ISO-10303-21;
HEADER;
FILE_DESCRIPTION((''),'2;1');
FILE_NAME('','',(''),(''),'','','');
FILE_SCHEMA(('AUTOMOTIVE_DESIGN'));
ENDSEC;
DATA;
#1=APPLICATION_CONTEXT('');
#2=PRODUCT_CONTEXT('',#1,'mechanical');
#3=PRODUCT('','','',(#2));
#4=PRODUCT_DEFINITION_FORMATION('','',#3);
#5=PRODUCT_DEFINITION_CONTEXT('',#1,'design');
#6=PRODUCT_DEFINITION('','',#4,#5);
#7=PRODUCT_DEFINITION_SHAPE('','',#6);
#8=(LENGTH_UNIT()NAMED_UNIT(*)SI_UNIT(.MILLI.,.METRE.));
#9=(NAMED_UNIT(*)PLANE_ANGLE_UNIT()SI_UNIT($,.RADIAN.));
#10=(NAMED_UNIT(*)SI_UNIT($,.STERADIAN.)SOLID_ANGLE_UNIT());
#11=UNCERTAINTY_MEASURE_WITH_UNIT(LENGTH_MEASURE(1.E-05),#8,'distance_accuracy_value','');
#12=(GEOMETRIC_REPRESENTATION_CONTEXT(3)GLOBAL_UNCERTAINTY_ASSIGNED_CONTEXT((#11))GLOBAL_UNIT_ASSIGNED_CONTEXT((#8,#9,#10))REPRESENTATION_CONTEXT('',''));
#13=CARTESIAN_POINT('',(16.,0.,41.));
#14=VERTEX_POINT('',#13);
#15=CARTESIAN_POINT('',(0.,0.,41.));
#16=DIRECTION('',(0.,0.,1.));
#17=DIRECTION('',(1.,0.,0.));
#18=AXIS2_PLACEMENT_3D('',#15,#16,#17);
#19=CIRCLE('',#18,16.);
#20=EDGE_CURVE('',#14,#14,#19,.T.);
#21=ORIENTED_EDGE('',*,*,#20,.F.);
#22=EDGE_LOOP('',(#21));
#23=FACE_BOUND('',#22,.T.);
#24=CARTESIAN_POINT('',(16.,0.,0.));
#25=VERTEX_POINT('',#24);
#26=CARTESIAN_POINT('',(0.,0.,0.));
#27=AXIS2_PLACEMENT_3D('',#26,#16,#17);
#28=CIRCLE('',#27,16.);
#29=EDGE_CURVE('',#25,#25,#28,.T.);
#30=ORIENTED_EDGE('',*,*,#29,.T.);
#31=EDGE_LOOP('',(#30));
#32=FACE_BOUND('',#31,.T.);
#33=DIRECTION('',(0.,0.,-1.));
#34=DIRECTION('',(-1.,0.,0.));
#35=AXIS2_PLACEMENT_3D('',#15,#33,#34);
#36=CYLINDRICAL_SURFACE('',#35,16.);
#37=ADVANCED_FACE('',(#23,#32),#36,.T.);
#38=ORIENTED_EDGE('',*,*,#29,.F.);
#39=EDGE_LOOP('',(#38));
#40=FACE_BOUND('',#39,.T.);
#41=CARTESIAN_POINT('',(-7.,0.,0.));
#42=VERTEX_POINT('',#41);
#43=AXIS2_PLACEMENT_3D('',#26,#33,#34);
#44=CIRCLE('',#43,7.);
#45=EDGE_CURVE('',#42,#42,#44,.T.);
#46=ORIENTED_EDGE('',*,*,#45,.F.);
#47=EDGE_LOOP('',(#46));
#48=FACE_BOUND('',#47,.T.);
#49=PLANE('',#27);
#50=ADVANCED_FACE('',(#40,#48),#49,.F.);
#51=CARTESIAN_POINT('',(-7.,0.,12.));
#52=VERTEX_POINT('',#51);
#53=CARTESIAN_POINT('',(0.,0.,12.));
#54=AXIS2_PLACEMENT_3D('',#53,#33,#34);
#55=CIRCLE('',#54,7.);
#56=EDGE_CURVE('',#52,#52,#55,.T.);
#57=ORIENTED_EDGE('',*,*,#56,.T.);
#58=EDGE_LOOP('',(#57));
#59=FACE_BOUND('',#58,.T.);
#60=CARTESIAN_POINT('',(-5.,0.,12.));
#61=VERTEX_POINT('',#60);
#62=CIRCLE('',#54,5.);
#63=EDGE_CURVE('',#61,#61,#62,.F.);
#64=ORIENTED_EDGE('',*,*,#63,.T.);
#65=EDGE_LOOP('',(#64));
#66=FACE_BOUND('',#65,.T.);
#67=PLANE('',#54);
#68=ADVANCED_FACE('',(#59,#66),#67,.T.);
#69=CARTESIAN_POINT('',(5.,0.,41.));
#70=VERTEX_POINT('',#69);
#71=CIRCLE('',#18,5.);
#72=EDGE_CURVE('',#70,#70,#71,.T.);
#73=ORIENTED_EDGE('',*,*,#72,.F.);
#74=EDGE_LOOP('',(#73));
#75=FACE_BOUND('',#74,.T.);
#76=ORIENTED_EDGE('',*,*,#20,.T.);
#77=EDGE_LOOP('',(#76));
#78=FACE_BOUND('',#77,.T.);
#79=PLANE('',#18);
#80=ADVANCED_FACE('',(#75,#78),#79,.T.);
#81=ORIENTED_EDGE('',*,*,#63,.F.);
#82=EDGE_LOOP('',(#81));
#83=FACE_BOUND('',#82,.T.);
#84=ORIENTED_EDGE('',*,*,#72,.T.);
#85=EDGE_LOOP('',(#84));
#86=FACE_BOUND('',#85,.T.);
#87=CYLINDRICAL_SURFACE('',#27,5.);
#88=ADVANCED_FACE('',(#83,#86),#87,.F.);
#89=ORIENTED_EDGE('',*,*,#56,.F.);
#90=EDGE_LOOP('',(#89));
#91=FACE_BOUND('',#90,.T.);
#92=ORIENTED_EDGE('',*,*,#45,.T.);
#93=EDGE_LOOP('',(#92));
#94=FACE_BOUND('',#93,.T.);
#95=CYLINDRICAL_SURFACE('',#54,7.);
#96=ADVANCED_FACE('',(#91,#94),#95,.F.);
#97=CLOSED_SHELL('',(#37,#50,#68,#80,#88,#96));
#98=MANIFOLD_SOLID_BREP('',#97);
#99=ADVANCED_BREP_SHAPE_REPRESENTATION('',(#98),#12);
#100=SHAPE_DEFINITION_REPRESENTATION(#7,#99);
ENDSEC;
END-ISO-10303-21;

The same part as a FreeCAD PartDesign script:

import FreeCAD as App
import Part
import Sketcher

V = App.Vector

doc = App.newDocument("Part")
body = doc.addObject("PartDesign::Body", "Body")

# Sketch on XY plane
sketch1 = doc.addObject("Sketcher::SketchObject", "Sketch")
body.addObject(sketch1)
sketch1.AttachmentSupport = (doc.XY_Plane, [""])
sketch1.MapMode = "FlatFace"
sketch1.addGeometry(Part.Circle(V(0, 0, 0), V(0, 0, 1), 16), False)
sketch1.addConstraint([
    Sketcher.Constraint("Coincident", 0, 3, -1, 1),
    Sketcher.Constraint("Diameter", 0, 32.0),
])
pad1 = doc.addObject("PartDesign::Pad", "Pad")
body.addObject(pad1)
pad1.Profile = sketch1
pad1.Length = 41

# Sketch on XY plane
sketch2 = doc.addObject("Sketcher::SketchObject", "Sketch001")
body.addObject(sketch2)
sketch2.AttachmentSupport = (doc.XY_Plane, [""])
sketch2.MapMode = "FlatFace"
sketch2.AttachmentOffset = App.Placement(V(0, 0, 41), App.Rotation())
sketch2.addGeometry(Part.Circle(V(0, 0, 0), V(0, 0, 1), 5), False)
sketch2.addConstraint([
    Sketcher.Constraint("Coincident", 0, 3, -1, 1),
    Sketcher.Constraint("Diameter", 0, 10.0),
])
pocket1 = doc.addObject("PartDesign::Pocket", "Pocket")
body.addObject(pocket1)
pocket1.Profile = sketch2
pocket1.Type = "ThroughAll"

# Sketch on XY plane
sketch3 = doc.addObject("Sketcher::SketchObject", "Sketch002")
body.addObject(sketch3)
sketch3.AttachmentSupport = (doc.XY_Plane, [""])
sketch3.MapMode = "FlatFace"
sketch3.addGeometry(Part.Circle(V(0, 0, 0), V(0, 0, 1), 7), False)
sketch3.addConstraint([
    Sketcher.Constraint("Coincident", 0, 3, -1, 1),
    Sketcher.Constraint("Diameter", 0, 14.0),
])
pocket2 = doc.addObject("PartDesign::Pocket", "Pocket001")
body.addObject(pocket2)
pocket2.Profile = sketch3
pocket2.Length = 12
pocket2.Reversed = True

doc.recompute()
